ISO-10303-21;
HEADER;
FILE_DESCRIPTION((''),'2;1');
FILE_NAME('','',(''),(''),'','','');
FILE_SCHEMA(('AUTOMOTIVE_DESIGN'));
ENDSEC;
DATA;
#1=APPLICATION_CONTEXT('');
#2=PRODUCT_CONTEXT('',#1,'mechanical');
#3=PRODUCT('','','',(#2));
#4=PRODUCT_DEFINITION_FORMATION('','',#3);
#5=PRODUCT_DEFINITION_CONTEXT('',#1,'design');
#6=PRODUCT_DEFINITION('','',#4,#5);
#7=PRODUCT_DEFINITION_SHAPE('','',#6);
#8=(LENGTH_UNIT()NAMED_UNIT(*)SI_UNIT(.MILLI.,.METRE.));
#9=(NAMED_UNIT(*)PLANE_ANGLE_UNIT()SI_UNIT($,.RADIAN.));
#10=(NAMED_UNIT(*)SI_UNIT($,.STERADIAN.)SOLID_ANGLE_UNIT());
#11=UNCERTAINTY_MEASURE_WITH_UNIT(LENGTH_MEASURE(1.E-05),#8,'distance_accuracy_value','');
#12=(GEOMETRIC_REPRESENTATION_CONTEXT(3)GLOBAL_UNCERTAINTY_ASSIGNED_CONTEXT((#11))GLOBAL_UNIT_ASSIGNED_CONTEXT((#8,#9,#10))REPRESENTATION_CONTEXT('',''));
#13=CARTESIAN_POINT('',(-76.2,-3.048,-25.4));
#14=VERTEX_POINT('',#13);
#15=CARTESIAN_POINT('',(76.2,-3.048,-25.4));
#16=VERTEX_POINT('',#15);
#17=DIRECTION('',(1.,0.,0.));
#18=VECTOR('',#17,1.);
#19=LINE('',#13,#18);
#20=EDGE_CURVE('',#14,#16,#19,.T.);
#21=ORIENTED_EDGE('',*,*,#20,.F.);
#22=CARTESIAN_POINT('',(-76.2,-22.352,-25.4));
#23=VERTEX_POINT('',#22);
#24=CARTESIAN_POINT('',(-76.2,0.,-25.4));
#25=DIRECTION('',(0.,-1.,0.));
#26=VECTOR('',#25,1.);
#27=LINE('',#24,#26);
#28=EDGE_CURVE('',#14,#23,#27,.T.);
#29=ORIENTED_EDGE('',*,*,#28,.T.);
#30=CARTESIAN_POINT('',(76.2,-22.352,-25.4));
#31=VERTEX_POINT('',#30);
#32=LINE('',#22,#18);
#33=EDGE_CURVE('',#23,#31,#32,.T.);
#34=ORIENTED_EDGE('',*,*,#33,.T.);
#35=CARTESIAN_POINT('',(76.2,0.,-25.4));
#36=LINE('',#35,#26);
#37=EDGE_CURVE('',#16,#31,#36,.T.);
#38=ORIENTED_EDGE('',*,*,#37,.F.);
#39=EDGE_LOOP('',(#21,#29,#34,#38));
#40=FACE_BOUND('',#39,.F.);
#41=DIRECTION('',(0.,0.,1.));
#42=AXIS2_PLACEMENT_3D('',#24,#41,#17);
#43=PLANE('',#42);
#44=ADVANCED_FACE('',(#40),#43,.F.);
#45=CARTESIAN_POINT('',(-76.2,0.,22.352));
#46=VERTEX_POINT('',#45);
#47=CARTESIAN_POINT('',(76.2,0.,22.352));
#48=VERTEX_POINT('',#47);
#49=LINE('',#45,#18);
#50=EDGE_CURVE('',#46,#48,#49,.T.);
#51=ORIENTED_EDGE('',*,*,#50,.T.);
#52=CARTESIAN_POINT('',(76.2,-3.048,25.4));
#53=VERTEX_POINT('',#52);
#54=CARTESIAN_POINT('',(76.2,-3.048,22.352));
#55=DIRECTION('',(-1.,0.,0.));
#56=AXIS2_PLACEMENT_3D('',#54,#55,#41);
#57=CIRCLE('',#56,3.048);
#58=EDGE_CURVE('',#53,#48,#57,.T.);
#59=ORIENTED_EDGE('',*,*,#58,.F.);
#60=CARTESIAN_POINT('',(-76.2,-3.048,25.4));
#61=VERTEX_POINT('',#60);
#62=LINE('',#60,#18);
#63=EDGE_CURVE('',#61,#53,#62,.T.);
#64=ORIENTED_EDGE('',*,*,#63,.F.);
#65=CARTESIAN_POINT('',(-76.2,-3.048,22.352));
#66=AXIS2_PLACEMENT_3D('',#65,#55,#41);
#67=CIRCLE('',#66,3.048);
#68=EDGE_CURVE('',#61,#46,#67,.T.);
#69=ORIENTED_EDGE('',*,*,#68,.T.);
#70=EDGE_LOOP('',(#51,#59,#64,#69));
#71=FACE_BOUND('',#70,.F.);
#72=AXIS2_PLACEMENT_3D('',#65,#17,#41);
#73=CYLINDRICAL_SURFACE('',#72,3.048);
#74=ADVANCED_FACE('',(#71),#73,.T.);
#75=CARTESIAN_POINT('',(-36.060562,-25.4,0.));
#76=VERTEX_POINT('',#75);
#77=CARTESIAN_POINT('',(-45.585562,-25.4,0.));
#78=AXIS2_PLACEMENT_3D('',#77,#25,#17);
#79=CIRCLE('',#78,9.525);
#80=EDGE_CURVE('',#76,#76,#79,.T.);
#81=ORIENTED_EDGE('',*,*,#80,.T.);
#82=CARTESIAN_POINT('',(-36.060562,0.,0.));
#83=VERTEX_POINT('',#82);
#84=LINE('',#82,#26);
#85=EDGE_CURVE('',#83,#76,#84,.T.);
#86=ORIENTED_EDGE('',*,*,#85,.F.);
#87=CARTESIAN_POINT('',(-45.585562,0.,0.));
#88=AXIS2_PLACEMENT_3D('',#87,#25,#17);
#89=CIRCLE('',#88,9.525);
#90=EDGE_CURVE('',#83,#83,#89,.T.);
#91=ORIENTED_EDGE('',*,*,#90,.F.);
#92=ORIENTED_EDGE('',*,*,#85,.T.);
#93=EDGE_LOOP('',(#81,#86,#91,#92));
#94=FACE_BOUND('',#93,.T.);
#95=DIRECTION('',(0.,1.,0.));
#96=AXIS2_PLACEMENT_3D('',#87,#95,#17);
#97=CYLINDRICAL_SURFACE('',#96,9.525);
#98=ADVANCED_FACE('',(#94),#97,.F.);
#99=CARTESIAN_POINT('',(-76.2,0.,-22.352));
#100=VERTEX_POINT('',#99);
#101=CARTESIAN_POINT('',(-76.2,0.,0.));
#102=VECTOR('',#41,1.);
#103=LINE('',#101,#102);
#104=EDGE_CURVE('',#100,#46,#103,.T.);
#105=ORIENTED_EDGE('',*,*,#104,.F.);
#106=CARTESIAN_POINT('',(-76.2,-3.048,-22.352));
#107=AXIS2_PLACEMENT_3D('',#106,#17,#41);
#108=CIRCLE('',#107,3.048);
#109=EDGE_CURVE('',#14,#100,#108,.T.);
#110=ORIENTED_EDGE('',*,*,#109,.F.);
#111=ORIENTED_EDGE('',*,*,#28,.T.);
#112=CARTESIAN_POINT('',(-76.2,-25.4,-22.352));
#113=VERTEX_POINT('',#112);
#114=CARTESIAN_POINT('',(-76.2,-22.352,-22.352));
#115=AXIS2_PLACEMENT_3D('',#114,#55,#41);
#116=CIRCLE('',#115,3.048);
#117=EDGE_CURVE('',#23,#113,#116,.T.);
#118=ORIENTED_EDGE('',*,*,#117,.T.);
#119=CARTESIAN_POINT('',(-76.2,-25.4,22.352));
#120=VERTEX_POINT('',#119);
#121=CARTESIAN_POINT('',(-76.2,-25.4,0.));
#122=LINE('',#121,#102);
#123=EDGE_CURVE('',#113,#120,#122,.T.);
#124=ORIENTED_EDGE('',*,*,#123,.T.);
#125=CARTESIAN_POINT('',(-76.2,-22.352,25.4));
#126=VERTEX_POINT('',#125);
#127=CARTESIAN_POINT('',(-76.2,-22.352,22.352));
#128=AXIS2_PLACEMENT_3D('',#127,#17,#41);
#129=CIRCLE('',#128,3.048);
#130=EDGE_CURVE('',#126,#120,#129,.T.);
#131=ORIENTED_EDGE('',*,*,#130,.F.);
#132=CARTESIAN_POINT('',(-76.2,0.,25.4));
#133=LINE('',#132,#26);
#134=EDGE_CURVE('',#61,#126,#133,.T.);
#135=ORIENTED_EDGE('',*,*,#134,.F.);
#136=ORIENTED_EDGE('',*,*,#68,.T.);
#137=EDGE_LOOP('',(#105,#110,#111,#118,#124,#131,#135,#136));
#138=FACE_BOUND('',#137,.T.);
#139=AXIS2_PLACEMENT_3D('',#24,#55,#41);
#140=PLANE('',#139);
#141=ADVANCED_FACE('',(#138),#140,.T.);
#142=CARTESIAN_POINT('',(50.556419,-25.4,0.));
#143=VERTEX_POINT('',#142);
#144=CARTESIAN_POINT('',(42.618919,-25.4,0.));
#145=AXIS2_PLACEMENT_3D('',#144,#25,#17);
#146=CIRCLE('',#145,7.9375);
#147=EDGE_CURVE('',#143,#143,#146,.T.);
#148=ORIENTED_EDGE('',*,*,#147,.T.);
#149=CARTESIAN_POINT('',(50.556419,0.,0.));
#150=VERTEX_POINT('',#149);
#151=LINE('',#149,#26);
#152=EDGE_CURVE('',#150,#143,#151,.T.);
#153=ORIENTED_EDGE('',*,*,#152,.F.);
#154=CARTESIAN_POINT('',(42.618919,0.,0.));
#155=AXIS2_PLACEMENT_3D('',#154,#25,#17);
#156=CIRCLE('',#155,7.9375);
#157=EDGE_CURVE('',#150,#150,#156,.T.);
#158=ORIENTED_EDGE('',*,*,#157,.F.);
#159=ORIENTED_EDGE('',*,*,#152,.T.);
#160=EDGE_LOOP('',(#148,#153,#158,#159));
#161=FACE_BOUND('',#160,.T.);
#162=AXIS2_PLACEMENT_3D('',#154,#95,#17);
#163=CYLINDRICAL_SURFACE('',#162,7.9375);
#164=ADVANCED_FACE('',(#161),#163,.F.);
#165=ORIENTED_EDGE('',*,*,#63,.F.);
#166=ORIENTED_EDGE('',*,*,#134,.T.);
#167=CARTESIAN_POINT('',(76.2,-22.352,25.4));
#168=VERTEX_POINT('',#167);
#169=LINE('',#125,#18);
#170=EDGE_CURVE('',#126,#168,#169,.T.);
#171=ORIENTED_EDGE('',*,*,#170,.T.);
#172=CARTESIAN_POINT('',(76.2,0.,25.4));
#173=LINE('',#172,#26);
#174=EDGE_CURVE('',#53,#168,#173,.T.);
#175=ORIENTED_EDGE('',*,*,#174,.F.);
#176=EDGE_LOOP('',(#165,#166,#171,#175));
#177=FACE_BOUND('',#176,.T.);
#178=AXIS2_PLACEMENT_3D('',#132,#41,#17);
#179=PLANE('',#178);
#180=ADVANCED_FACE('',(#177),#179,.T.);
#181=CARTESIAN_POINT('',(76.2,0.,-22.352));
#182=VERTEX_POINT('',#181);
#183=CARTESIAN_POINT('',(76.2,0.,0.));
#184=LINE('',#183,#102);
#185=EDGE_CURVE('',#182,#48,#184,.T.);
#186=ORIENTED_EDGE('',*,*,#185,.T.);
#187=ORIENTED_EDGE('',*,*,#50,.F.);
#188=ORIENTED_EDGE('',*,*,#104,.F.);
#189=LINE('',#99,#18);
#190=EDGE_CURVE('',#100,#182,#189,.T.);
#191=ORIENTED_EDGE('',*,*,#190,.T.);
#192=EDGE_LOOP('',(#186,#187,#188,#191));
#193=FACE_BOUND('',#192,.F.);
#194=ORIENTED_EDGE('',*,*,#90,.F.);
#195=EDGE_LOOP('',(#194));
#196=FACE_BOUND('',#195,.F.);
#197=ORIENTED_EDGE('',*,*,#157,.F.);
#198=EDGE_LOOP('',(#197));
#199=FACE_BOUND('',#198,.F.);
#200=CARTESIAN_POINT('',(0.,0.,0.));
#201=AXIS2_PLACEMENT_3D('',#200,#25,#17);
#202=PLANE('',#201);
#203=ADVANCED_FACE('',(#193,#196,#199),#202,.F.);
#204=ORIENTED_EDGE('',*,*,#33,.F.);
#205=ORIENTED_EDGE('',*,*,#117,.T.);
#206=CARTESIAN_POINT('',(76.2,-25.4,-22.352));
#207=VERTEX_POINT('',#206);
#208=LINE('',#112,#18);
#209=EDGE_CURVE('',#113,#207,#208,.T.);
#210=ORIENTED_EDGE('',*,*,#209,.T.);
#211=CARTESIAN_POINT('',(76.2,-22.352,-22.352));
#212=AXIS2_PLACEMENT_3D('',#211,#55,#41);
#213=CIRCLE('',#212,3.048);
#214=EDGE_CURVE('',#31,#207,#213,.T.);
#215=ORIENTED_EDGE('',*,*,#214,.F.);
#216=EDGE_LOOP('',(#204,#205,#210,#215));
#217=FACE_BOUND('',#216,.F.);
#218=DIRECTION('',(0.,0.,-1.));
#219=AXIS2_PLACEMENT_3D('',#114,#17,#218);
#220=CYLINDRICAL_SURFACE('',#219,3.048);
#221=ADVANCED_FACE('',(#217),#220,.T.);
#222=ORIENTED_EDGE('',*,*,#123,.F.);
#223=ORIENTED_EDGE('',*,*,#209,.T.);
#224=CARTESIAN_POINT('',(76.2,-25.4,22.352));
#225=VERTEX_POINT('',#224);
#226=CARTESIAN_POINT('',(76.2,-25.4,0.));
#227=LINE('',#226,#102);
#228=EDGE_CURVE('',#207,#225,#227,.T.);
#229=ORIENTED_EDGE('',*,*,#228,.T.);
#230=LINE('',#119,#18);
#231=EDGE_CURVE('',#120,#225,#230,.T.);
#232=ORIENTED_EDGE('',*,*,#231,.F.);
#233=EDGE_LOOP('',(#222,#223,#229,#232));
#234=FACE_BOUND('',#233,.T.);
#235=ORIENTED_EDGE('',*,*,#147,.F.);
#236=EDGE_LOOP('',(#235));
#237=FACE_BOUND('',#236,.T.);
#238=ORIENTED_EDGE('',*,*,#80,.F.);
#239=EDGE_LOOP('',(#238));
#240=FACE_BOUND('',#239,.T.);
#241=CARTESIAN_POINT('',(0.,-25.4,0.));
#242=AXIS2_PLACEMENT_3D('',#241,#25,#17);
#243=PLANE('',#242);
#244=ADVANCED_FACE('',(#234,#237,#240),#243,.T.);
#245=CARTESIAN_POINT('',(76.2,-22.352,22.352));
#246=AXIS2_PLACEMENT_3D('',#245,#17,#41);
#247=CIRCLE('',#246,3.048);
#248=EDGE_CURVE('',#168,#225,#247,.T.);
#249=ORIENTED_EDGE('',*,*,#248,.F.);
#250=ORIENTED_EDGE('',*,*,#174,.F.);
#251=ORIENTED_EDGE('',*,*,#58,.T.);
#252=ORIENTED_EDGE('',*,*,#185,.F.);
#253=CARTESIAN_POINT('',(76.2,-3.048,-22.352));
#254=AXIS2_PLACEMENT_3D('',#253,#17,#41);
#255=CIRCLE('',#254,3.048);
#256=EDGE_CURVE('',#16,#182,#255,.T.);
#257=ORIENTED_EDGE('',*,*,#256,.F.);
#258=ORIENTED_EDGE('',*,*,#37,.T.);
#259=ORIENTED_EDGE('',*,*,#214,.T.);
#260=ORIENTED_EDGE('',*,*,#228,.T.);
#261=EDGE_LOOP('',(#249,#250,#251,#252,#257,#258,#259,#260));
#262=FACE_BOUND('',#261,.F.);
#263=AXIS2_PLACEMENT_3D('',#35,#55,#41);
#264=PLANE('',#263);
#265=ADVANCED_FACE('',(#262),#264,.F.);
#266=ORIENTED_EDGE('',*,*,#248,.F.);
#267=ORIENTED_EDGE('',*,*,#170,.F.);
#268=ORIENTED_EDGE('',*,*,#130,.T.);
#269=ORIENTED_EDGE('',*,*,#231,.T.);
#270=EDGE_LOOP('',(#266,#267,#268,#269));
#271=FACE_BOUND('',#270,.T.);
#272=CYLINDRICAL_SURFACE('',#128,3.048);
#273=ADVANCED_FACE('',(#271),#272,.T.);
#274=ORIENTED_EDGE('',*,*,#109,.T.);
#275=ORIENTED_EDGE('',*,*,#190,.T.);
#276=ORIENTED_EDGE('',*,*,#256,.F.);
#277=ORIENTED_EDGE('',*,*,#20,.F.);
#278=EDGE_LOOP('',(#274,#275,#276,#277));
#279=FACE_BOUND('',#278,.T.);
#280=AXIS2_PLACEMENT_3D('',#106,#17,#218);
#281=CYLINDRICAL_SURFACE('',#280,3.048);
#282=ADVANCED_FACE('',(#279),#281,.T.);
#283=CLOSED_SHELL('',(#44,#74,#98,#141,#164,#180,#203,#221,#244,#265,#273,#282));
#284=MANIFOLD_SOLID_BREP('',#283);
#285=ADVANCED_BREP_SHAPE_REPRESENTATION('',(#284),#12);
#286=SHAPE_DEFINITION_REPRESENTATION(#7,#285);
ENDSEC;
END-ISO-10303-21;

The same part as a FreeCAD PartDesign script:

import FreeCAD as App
import Part
import Sketcher
from FreeCAD import Vector
Q = App.Units.Quantity


def edges_at(feature, points):
    """Names of the edges that pass closest to the given points."""
    edges = feature.Shape.Edges
    near = lambda p: min(range(len(edges)), key=lambda i: edges[i].distToShape(Part.Vertex(*p))[0])
    return sorted({f"Edge{near(p) + 1}" for p in points})


def add_polygon(sketch, points):
    """Adds a closed chain of lines whose ends are joined by coincident constraints."""
    first, n = sketch.GeometryCount, len(points)
    for a, b in zip(points, points[1:] + points[:1]):
        sketch.addGeometry(Part.LineSegment(App.Vector(*a, 0), App.Vector(*b, 0)), False)
    for i in range(n):
        sketch.addConstraint(Sketcher.Constraint("Coincident", first + i, 2, first + (i + 1) % n, 1))

doc = App.newDocument("Part")
body = doc.addObject("PartDesign::Body", "Body")

# Sketch on XZ plane
sketch1 = body.newObject("Sketcher::SketchObject", "Sketch")
sketch1.AttachmentSupport = (doc.getObject("XZ_Plane"), [""])
sketch1.MapMode = "FlatFace"
add_polygon(sketch1, [(-76, 25), (-76, -25), (76, -25), (76, 25)])  # lines 0-3
sketch1.addGeometry(Part.Circle(Vector(-46, 0, 0), Vector(0, 0, 1), 10), False)  # 4
sketch1.addGeometry(Part.Circle(Vector(43, 0, 0), Vector(0, 0, 1), 8), False)  # 5
sketch1.addConstraint(Sketcher.Constraint("Vertical", 0))
sketch1.addConstraint(Sketcher.Constraint("Horizontal", 1))
sketch1.addConstraint(Sketcher.Constraint("Vertical", 2))
sketch1.addConstraint(Sketcher.Constraint("Horizontal", 3))
sketch1.addConstraint(Sketcher.Constraint("Symmetric", 0, 2, 2, 2, -1, 1))
sketch1.addConstraint(Sketcher.Constraint("PointOnObject", 4, 3, -1))
sketch1.addConstraint(Sketcher.Constraint("PointOnObject", 5, 3, -1))
sketch1.addConstraint(Sketcher.Constraint("Diameter", 4, Q("0.75 in")))
sketch1.addConstraint(Sketcher.Constraint("DistanceX", 1, 1, 1, 2, Q("6 in")))
sketch1.addConstraint(Sketcher.Constraint("DistanceY", 0, 2, 0, 1, Q("2 in")))
sketch1.addConstraint(Sketcher.Constraint("Diameter", 5, Q("0.625 in")))
sketch1.addConstraint(Sketcher.Constraint("DistanceX", -1, 1, 5, 3, Q("42.618919 mm")))
sketch1.addConstraint(Sketcher.Constraint("DistanceX", 4, 3, 5, 3, Q("88.204481 mm")))
pad1 = body.newObject("PartDesign::Pad", "Pad")
pad1.Profile = sketch1
pad1.Length = Q("1 in")
doc.recompute()

fillet = body.newObject("PartDesign::Fillet", "Fillet")
fillet.Base = (pad1, edges_at(pad1, [
    (0, -25.4, 25.4),
    (0, -25.4, -25.4),
    (0, 0, 25.4),
    (0, 0, -25.4),
]))
fillet.Radius = Q("0.12 in")

doc.recompute()
